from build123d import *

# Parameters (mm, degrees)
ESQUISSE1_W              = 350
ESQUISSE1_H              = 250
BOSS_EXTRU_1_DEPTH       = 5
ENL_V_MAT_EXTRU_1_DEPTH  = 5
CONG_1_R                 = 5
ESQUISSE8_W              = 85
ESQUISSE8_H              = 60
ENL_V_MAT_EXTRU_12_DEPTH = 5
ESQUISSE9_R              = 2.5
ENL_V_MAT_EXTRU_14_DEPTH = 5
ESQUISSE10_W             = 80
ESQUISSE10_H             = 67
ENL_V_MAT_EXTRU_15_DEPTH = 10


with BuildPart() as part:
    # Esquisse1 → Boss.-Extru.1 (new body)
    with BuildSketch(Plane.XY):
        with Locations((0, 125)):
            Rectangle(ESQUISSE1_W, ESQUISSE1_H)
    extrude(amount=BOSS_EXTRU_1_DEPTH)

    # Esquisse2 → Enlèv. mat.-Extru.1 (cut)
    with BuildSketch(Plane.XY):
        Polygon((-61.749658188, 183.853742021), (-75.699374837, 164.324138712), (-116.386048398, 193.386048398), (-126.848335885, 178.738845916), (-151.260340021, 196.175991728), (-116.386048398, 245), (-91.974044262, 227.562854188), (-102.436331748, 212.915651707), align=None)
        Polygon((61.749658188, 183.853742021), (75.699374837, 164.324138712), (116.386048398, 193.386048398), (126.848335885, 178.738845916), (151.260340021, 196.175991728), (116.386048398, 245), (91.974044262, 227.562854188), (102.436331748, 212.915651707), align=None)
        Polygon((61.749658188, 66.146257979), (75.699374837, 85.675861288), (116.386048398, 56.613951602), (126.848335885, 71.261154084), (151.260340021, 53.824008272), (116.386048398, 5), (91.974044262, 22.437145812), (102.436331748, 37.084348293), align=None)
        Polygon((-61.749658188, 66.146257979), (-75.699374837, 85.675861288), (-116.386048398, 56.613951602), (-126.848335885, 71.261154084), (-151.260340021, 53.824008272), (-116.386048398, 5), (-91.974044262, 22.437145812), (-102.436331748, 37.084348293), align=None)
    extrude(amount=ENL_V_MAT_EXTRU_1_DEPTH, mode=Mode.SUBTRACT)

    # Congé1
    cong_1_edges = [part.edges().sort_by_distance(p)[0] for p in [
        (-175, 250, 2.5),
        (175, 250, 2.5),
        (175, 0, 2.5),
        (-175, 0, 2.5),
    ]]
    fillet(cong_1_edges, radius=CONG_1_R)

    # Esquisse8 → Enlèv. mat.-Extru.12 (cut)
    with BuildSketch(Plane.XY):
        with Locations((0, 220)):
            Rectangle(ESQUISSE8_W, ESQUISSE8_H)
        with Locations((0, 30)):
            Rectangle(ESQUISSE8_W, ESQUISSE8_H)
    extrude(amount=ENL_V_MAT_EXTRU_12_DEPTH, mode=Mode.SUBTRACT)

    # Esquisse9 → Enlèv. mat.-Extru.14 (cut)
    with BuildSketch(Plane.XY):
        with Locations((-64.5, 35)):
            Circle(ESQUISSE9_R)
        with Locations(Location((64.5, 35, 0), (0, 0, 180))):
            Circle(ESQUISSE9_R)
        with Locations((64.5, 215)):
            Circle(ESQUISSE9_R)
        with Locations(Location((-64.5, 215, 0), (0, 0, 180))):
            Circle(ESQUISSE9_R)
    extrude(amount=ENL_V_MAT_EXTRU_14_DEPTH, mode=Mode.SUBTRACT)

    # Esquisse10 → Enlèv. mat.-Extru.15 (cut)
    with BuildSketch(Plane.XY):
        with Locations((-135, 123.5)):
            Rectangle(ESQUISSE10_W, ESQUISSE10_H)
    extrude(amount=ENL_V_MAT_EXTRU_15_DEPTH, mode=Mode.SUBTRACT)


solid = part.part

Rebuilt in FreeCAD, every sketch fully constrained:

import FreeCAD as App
import Part
import Sketcher

V = App.Vector
Q = App.Units.Quantity


def edges_at(feature, points):
    """Names of the edges that pass closest to the given points."""
    edges = feature.Shape.Edges
    near = lambda p: min(range(len(edges)), key=lambda i: edges[i].distToShape(Part.Vertex(*p))[0])
    return sorted({f"Edge{near(p) + 1}" for p in points})

doc = App.newDocument("Part")
body = doc.addObject("PartDesign::Body", "Body")

# Sketch on XY plane
sketch1 = body.newObject("Sketcher::SketchObject", "Sketch")
sketch1.AttachmentSupport = (doc.getObject("XY_Plane"), [""])
sketch1.MapMode = "FlatFace"
sketch1.addGeometry([
    Part.LineSegment(V(-175, 250, 0), V(-175, 0, 0)),
    Part.LineSegment(V(-175, 0, 0), V(175, 0, 0)),
    Part.LineSegment(V(175, 0, 0), V(175, 250, 0)),
    Part.LineSegment(V(175, 250, 0), V(-175, 250, 0)),
], False)
sketch1.addConstraint([
    Sketcher.Constraint("Coincident", 0, 2, 1, 1),
    Sketcher.Constraint("Coincident", 1, 2, 2, 1),
    Sketcher.Constraint("Coincident", 2, 2, 3, 1),
    Sketcher.Constraint("Coincident", 3, 2, 0, 1),
    Sketcher.Constraint("Vertical", 0),
    Sketcher.Constraint("Horizontal", 1),
    Sketcher.Constraint("Vertical", 2),
    Sketcher.Constraint("Horizontal", 3),
    Sketcher.Constraint("Symmetric", 0, 2, 1, 2, -1, 1),
    Sketcher.Constraint("DistanceX", 1, 1, 1, 2, Q("350 mm")),
    Sketcher.Constraint("DistanceY", 0, 2, 0, 1, Q("250 mm")),
])
pad1 = body.newObject("PartDesign::Pad", "Pad")
pad1.Profile = sketch1
pad1.Length = 5

# Sketch on XY plane
sketch2 = body.newObject("Sketcher::SketchObject", "Sketch001")
sketch2.AttachmentSupport = (doc.getObject("XY_Plane"), [""])
sketch2.MapMode = "FlatFace"
sketch2.addGeometry([
    Part.LineSegment(V(-76, 164, 0), V(-62, 184, 0)),  # 0
    Part.LineSegment(V(-62, 184, 0), V(-102, 213, 0)),  # 1
    Part.LineSegment(V(-102, 213, 0), V(-92, 228, 0)),  # 2
    Part.LineSegment(V(-92, 228, 0), V(-116, 245, 0)),  # 3
    Part.LineSegment(V(-116, 245, 0), V(-151, 196, 0)),  # 4
    Part.LineSegment(V(-151, 196, 0), V(-127, 179, 0)),  # 5
    Part.LineSegment(V(-127, 179, 0), V(-116, 193, 0)),  # 6
    Part.LineSegment(V(-116, 193, 0), V(-76, 164, 0)),  # 7
    Part.LineSegment(V(62, 184, 0), V(76, 164, 0)),  # 8
    Part.LineSegment(V(76, 164, 0), V(116, 193, 0)),  # 9
    Part.LineSegment(V(116, 193, 0), V(127, 179, 0)),  # 10
    Part.LineSegment(V(127, 179, 0), V(151, 196, 0)),  # 11
    Part.LineSegment(V(151, 196, 0), V(116, 245, 0)),  # 12
    Part.LineSegment(V(116, 245, 0), V(92, 228, 0)),  # 13
    Part.LineSegment(V(92, 228, 0), V(102, 213, 0)),  # 14
    Part.LineSegment(V(102, 213, 0), V(62, 184, 0)),  # 15
    Part.LineSegment(V(76, 86, 0), V(62, 66, 0)),  # 16
    Part.LineSegment(V(62, 66, 0), V(102, 37, 0)),  # 17
    Part.LineSegment(V(102, 37, 0), V(92, 22, 0)),  # 18
    Part.LineSegment(V(92, 22, 0), V(116, 5, 0)),  # 19
    Part.LineSegment(V(116, 5, 0), V(151, 54, 0)),  # 20
    Part.LineSegment(V(151, 54, 0), V(127, 71, 0)),  # 21
    Part.LineSegment(V(127, 71, 0), V(116, 57, 0)),  # 22
    Part.LineSegment(V(116, 57, 0), V(76, 86, 0)),  # 23
    Part.LineSegment(V(-62, 66, 0), V(-76, 86, 0)),  # 24
    Part.LineSegment(V(-76, 86, 0), V(-116, 57, 0)),  # 25
    Part.LineSegment(V(-116, 57, 0), V(-127, 71, 0)),  # 26
    Part.LineSegment(V(-127, 71, 0), V(-151, 54, 0)),  # 27
    Part.LineSegment(V(-151, 54, 0), V(-116, 5, 0)),  # 28
    Part.LineSegment(V(-116, 5, 0), V(-92, 22, 0)),  # 29
    Part.LineSegment(V(-92, 22, 0), V(-102, 37, 0)),  # 30
    Part.LineSegment(V(-102, 37, 0), V(-62, 66, 0)),  # 31
], False)
sketch2.addConstraint([
    Sketcher.Constraint("Coincident", 0, 2, 1, 1),
    Sketcher.Constraint("Coincident", 1, 2, 2, 1),
    Sketcher.Constraint("Coincident", 2, 2, 3, 1),
    Sketcher.Constraint("Coincident", 3, 2, 4, 1),
    Sketcher.Constraint("Coincident", 4, 2, 5, 1),
    Sketcher.Constraint("Coincident", 5, 2, 6, 1),
    Sketcher.Constraint("Coincident", 6, 2, 7, 1),
    Sketcher.Constraint("Coincident", 7, 2, 0, 1),
    Sketcher.Constraint("Coincident", 8, 2, 9, 1),
    Sketcher.Constraint("Coincident", 9, 2, 10, 1),
    Sketcher.Constraint("Coincident", 10, 2, 11, 1),
    Sketcher.Constraint("Coincident", 11, 2, 12, 1),
    Sketcher.Constraint("Coincident", 12, 2, 13, 1),
    Sketcher.Constraint("Coincident", 13, 2, 14, 1),
    Sketcher.Constraint("Coincident", 14, 2, 15, 1),
    Sketcher.Constraint("Coincident", 15, 2, 8, 1),
    Sketcher.Constraint("Coincident", 16, 2, 17, 1),
    Sketcher.Constraint("Coincident", 17, 2, 18, 1),
    Sketcher.Constraint("Coincident", 18, 2, 19, 1),
    Sketcher.Constraint("Coincident", 19, 2, 20, 1),
    Sketcher.Constraint("Coincident", 20, 2, 21, 1),
    Sketcher.Constraint("Coincident", 21, 2, 22, 1),
    Sketcher.Constraint("Coincident", 22, 2, 23, 1),
    Sketcher.Constraint("Coincident", 23, 2, 16, 1),
    Sketcher.Constraint("Coincident", 24, 2, 25, 1),
    Sketcher.Constraint("Coincident", 25, 2, 26, 1),
    Sketcher.Constraint("Coincident", 26, 2, 27, 1),
    Sketcher.Constraint("Coincident", 27, 2, 28, 1),
    Sketcher.Constraint("Coincident", 28, 2, 29, 1),
    Sketcher.Constraint("Coincident", 29, 2, 30, 1),
    Sketcher.Constraint("Coincident", 30, 2, 31, 1),
    Sketcher.Constraint("Coincident", 31, 2, 24, 1),
    Sketcher.Constraint("Symmetric", 7, 2, 8, 2, -2),
    Sketcher.Constraint("Symmetric", 6, 2, 9, 2, -2),
    Sketcher.Constraint("Symmetric", 5, 2, 10, 2, -2),
    Sketcher.Constraint("Symmetric", 4, 2, 11, 2, -2),
    Sketcher.Constraint("Symmetric", 3, 2, 12, 2, -2),
    Sketcher.Constraint("Symmetric", 2, 2, 13, 2, -2),
    Sketcher.Constraint("Symmetric", 1, 2, 14, 2, -2),
    Sketcher.Constraint("Symmetric", 0, 2, 15, 2, -2),
    Sketcher.Constraint("Symmetric", 23, 2, 24, 2, -2),
    Sketcher.Constraint("Symmetric", 22, 2, 25, 2, -2),
    Sketcher.Constraint("Symmetric", 21, 2, 26, 2, -2),
    Sketcher.Constraint("Symmetric", 20, 2, 27, 2, -2),
    Sketcher.Constraint("Symmetric", 19, 2, 28, 2, -2),
    Sketcher.Constraint("Symmetric", 18, 2, 29, 2, -2),
    Sketcher.Constraint("Symmetric", 17, 2, 30, 2, -2),
    Sketcher.Constraint("Symmetric", 16, 2, 31, 2, -2),
    Sketcher.Constraint("Perpendicular", 0, 1),
    Sketcher.Constraint("Perpendicular", 1, 2),
    Sketcher.Constraint("Perpendicular", 2, 3),
    Sketcher.Constraint("Perpendicular", 3, 4),
    Sketcher.Constraint("Perpendicular", 4, 5),
    Sketcher.Constraint("Perpendicular", 5, 6),
    Sketcher.Constraint("Perpendicular", 6, 7),
    Sketcher.Constraint("Perpendicular", 7, 16),
    Sketcher.Constraint("Perpendicular", 16, 17),
    Sketcher.Constraint("Perpendicular", 17, 18),
    Sketcher.Constraint("Perpendicular", 18, 19),
    Sketcher.Constraint("Perpendicular", 19, 20),
    Sketcher.Constraint("Perpendicular", 20, 21),
    Sketcher.Constraint("Perpendicular", 21, 22),
    Sketcher.Constraint("Perpendicular", 22, 23),
    Sketcher.Constraint("Vertical", 3, 2, 6, 2),
    Sketcher.Constraint("Vertical", 15, 2, 16, 2),
    Sketcher.Constraint("Vertical", 14, 2, 17, 2),
    Sketcher.Constraint("Vertical", 13, 2, 18, 2),
    Sketcher.Constraint("Vertical", 12, 2, 19, 2),
    Sketcher.Constraint("Vertical", 11, 2, 20, 2),
    Sketcher.Constraint("Vertical", 10, 2, 21, 2),
    Sketcher.Constraint("Vertical", 19, 2, 22, 2),
    Sketcher.Constraint("Equal", 3, 5),
    Sketcher.Constraint("Equal", 2, 6),
    Sketcher.Constraint("Distance", 0, Q("24 mm")),
    Sketcher.Constraint("Distance", 1, Q("50 mm")),
    Sketcher.Constraint("Distance", 2, Q("18 mm")),
    Sketcher.Constraint("Distance", 3, Q("30 mm")),
    Sketcher.Constraint("DistanceY", -1, 1, 3, 2, Q("245 mm")),
    Sketcher.Constraint("DistanceY", -1, 1, 19, 2, Q("5 mm")),
    Sketcher.Constraint("DistanceX", 0, 2, 11, 2, Q("213.009998 mm")),
])
pocket1 = body.newObject("PartDesign::Pocket", "Pocket")
pocket1.Profile = sketch2
pocket1.Length = 5
pocket1.Reversed = True
doc.recompute()

fillet = body.newObject("PartDesign::Fillet", "Fillet")
fillet.Base = (pocket1, edges_at(pocket1, [
    (-175, 250, 2.5),
    (175, 250, 2.5),
    (175, 0, 2.5),
    (-175, 0, 2.5),
]))
fillet.Radius = 5

# Sketch on XY plane
sketch3 = body.newObject("Sketcher::SketchObject", "Sketch002")
sketch3.AttachmentSupport = (doc.getObject("XY_Plane"), [""])
sketch3.MapMode = "FlatFace"
sketch3.addGeometry([
    Part.LineSegment(V(-42, 250, 0), V(-42, 190, 0)),  # 0
    Part.LineSegment(V(-42, 190, 0), V(42, 190, 0)),  # 1
    Part.LineSegment(V(42, 190, 0), V(42, 250, 0)),  # 2
    Part.LineSegment(V(42, 250, 0), V(-42, 250, 0)),  # 3
    Part.LineSegment(V(-42, 60, 0), V(-42, 0, 0)),  # 4
    Part.LineSegment(V(-42, 0, 0), V(42, 0, 0)),  # 5
    Part.LineSegment(V(42, 0, 0), V(42, 60, 0)),  # 6
    Part.LineSegment(V(42, 60, 0), V(-42, 60, 0)),  # 7
], False)
sketch3.addConstraint([
    Sketcher.Constraint("Coincident", 0, 2, 1, 1),
    Sketcher.Constraint("Coincident", 1, 2, 2, 1),
    Sketcher.Constraint("Coincident", 2, 2, 3, 1),
    Sketcher.Constraint("Coincident", 3, 2, 0, 1),
    Sketcher.Constraint("Coincident", 4, 2, 5, 1),
    Sketcher.Constraint("Coincident", 5, 2, 6, 1),
    Sketcher.Constraint("Coincident", 6, 2, 7, 1),
    Sketcher.Constraint("Coincident", 7, 2, 4, 1),
    Sketcher.Constraint("Vertical", 0),
    Sketcher.Constraint("Horizontal", 1),
    Sketcher.Constraint("Vertical", 2),
    Sketcher.Constraint("Horizontal", 3),
    Sketcher.Constraint("Vertical", 4),
    Sketcher.Constraint("Horizontal", 5),
    Sketcher.Constraint("Vertical", 6),
    Sketcher.Constraint("Horizontal", 7),
    Sketcher.Constraint("Symmetric", 4, 2, 5, 2, -1, 1),
    Sketcher.Constraint("Vertical", 3, 2, 4, 2),
    Sketcher.Constraint("Vertical", 2, 2, 5, 2),
    Sketcher.Constraint("Equal", 2, 4),
    Sketcher.Constraint("DistanceX", 1, 1, 1, 2, Q("85 mm")),
    Sketcher.Constraint("DistanceY", 0, 2, 0, 1, Q("60 mm")),
    Sketcher.Constraint("DistanceY", -1, 1, 0, 2, Q("190 mm")),
])
pocket2 = body.newObject("PartDesign::Pocket", "Pocket001")
pocket2.Profile = sketch3
pocket2.Length = 5
pocket2.Reversed = True

# Sketch on XY plane
sketch4 = body.newObject("Sketcher::SketchObject", "Sketch003")
sketch4.AttachmentSupport = (doc.getObject("XY_Plane"), [""])
sketch4.MapMode = "FlatFace"
sketch4.addGeometry([
    Part.Circle(V(-64.5, 35, 0), V(0, 0, 1), 2.5),
    Part.Circle(V(64.5, 35, 0), V(0, 0, 1), 2.5),
    Part.Circle(V(64.5, 215, 0), V(0, 0, 1), 2.5),
    Part.Circle(V(-64.5, 215, 0), V(0, 0, 1), 2.5),
], False)
sketch4.addConstraint([
    Sketcher.Constraint("Equal", 0, 1),
    Sketcher.Constraint("Equal", 1, 2),
    Sketcher.Constraint("Equal", 2, 3),
    Sketcher.Constraint("Symmetric", 0, 3, 1, 3, -2),
    Sketcher.Constraint("Symmetric", 2, 3, 3, 3, -2),
    Sketcher.Constraint("Vertical", 1, 3, 2, 3),
    Sketcher.Constraint("Diameter", 0, Q("5 mm")),
    Sketcher.Constraint("DistanceY", -1, 1, 0, 3, Q("35 mm")),
    Sketcher.Constraint("DistanceY", -1, 1, 2, 3, Q("215 mm")),
    Sketcher.Constraint("DistanceX", 0, 3, 1, 3, Q("129 mm")),
])
pocket3 = body.newObject("PartDesign::Pocket", "Pocket002")
pocket3.Profile = sketch4
pocket3.Length = 5
pocket3.Reversed = True

# Sketch on XY plane
sketch5 = body.newObject("Sketcher::SketchObject", "Sketch004")
sketch5.AttachmentSupport = (doc.getObject("XY_Plane"), [""])
sketch5.MapMode = "FlatFace"
sketch5.addGeometry([
    Part.LineSegment(V(-175, 157, 0), V(-175, 90, 0)),
    Part.LineSegment(V(-175, 90, 0), V(-95, 90, 0)),
    Part.LineSegment(V(-95, 90, 0), V(-95, 157, 0)),
    Part.LineSegment(V(-95, 157, 0), V(-175, 157, 0)),
], False)
sketch5.addConstraint([
    Sketcher.Constraint("Coincident", 0, 2, 1, 1),
    Sketcher.Constraint("Coincident", 1, 2, 2, 1),
    Sketcher.Constraint("Coincident", 2, 2, 3, 1),
    Sketcher.Constraint("Coincident", 3, 2, 0, 1),
    Sketcher.Constraint("Vertical", 0),
    Sketcher.Constraint("Horizontal", 1),
    Sketcher.Constraint("Vertical", 2),
    Sketcher.Constraint("Horizontal", 3),
    Sketcher.Constraint("DistanceX", 1, 1, 1, 2, Q("80 mm")),
    Sketcher.Constraint("DistanceY", 0, 2, 0, 1, Q("67 mm")),
    Sketcher.Constraint("DistanceX", 0, 2, -1, 1, Q("175 mm")),
    Sketcher.Constraint("DistanceY", -1, 1, 0, 2, Q("90 mm")),
])
pocket4 = body.newObject("PartDesign::Pocket", "Pocket003")
pocket4.Profile = sketch5
pocket4.Length = 10
pocket4.Reversed = True

doc.recompute()
